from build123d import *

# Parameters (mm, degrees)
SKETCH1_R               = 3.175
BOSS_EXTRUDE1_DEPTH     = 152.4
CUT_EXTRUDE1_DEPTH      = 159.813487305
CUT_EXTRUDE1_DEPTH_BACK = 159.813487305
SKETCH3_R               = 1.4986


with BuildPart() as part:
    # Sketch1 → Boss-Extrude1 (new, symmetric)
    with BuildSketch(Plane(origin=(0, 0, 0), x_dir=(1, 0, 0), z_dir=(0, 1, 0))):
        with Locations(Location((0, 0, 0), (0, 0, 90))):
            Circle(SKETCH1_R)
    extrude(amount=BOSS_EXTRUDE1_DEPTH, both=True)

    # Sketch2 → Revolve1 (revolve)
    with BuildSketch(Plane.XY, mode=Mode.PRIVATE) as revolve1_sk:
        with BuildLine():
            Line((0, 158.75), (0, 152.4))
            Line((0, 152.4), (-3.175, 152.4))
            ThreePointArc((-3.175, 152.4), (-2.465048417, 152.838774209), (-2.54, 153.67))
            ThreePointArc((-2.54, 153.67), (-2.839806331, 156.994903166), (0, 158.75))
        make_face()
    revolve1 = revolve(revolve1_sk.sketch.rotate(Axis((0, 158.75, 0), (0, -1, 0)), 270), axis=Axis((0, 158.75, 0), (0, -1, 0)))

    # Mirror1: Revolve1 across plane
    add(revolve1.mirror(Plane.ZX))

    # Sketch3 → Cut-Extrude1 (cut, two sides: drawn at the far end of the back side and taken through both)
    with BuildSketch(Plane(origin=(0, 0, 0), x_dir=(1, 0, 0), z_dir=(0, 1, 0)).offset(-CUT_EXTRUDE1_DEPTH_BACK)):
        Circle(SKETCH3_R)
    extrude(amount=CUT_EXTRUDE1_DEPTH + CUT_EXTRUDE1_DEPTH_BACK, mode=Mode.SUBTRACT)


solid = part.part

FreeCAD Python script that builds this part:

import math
import FreeCAD as App
import Part
import Sketcher
from FreeCAD import Vector
Q = App.Units.Quantity

doc = App.newDocument("Part")
body = doc.addObject("PartDesign::Body", "Body")

sketch1 = body.newObject("Sketcher::SketchObject", "Sketch")
sketch1.AttachmentSupport = (doc.getObject("XZ_Plane"), [""])
sketch1.MapMode = "FlatFace"
sketch1.addGeometry(Part.Circle(Vector(0, 0, 0), Vector(0, 0, 1), 3.2), False)
sketch1.addConstraint(Sketcher.Constraint("Coincident", 0, 3, -1, 1))
sketch1.addConstraint(Sketcher.Constraint("Diameter", 0, Q("0.25 in")))
pad1 = body.newObject("PartDesign::Pad", "Pad")
pad1.Profile = sketch1
pad1.Length = Q("12 in")
pad1.Midplane = True

sketch2 = body.newObject("Sketcher::SketchObject", "Sketch001")
sketch2.AttachmentSupport = (doc.getObject("XY_Plane"), [""])
sketch2.MapMode = "FlatFace"
sketch2.addGeometry(Part.LineSegment(Vector(0, 152.4, 0), Vector(0, 158.8, 0)), False)
sketch2.addGeometry(Part.ArcOfCircle(Part.Circle(Vector(0, 155.6, 0), Vector(0, 0, 1), 3.2), math.radians(90), math.radians(217)), False)
sketch2.addGeometry(Part.ArcOfCircle(Part.Circle(Vector(-3.2, 153.2, 0), Vector(0, 0, 1), 0.8), math.radians(-90), math.radians(37)), False)
sketch2.addGeometry(Part.LineSegment(Vector(-3.2, 152.4, 0), Vector(0, 152.4, 0)), False)
sketch2.addConstraint(Sketcher.Constraint("Coincident", 0, 2, 1, 1))
sketch2.addConstraint(Sketcher.Constraint("Tangent", 1, 2, 2, 2))
sketch2.addConstraint(Sketcher.Constraint("Tangent", 2, 1, 3, 1))
sketch2.addConstraint(Sketcher.Constraint("Coincident", 3, 2, 0, 1))
sketch2.addConstraint(Sketcher.Constraint("Vertical", 0))
sketch2.addConstraint(Sketcher.Constraint("Horizontal", 3))
sketch2.addConstraint(Sketcher.Constraint("PointOnObject", 1, 3, -2))
sketch2.addConstraint(Sketcher.Constraint("PointOnObject", 0, 2, -2))
sketch2.addConstraint(Sketcher.Constraint("DistanceY", -1, 1, 2, 1, Q("6 in")))
sketch2.addConstraint(Sketcher.Constraint("Radius", 1, Q("0.125 in")))
sketch2.addConstraint(Sketcher.Constraint("Radius", 2, Q("0.03125 in")))
sketch2.addConstraint(Sketcher.Constraint("DistanceY", 0, 1, 0, 2, Q("0.25 in")))
revolution = body.newObject("PartDesign::Revolution", "Revolution")
revolution.Profile = sketch2
revolution.ReferenceAxis = (sketch2, ["V_Axis"])
revolution.Angle = 360
doc.recompute()

mirrored = body.newObject("PartDesign::Mirrored", "Mirrored")
mirrored.Originals = [revolution]
mirrored.MirrorPlane = (doc.getObject("XZ_Plane"), [""])
body.Tip = mirrored

sketch3 = body.newObject("Sketcher::SketchObject", "Sketch002")
sketch3.AttachmentSupport = (doc.getObject("XZ_Plane"), [""])
sketch3.MapMode = "FlatFace"
sketch3.addGeometry(Part.Circle(Vector(0, 0, 0), Vector(0, 0, 1), 1.5), False)
sketch3.addConstraint(Sketcher.Constraint("Coincident", 0, 3, -1, 1))
sketch3.addConstraint(Sketcher.Constraint("Diameter", 0, Q("0.118 in")))
pocket1 = body.newObject("PartDesign::Pocket", "Pocket")
pocket1.Profile = sketch3
pocket1.Type = "ThroughAll"
pocket1.Midplane = True

doc.recompute()
